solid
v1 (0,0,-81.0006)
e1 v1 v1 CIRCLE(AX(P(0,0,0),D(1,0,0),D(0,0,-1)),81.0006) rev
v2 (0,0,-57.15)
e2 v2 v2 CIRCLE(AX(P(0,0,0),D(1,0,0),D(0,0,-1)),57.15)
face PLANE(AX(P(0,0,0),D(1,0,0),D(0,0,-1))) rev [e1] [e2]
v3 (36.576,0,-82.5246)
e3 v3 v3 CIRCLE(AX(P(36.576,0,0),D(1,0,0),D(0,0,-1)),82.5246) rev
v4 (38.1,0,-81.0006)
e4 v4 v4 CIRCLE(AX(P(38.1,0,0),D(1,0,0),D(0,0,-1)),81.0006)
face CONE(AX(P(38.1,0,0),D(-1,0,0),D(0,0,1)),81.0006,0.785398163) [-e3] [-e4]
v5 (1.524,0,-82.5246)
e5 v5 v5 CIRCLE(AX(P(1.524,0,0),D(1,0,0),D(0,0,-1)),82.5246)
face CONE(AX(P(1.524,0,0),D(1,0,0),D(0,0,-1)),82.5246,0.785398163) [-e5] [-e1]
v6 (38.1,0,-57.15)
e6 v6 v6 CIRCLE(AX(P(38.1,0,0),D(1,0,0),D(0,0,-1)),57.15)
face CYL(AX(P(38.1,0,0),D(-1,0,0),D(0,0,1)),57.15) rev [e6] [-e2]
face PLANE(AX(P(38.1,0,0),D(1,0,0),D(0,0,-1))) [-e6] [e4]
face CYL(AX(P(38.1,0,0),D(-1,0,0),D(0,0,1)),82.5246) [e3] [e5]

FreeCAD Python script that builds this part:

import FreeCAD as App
import Part
import Sketcher

V = App.Vector
Q = App.Units.Quantity


def edges_at(feature, points):
    """Names of the edges that pass closest to the given points."""
    edges = feature.Shape.Edges
    near = lambda p: min(range(len(edges)), key=lambda i: edges[i].distToShape(Part.Vertex(*p))[0])
    return sorted({f"Edge{near(p) + 1}" for p in points})

doc = App.newDocument("Part")
body = doc.addObject("PartDesign::Body", "Body")

sketch1 = doc.addObject("Sketcher::SketchObject", "Sketch")
body.addObject(sketch1)
sketch1.AttachmentSupport = (doc.YZ_Plane, [""])
sketch1.MapMode = "FlatFace"
sketch1.addGeometry(Part.Circle(V(0, 0, 0), V(0, 0, 1), 82.5246), False)
sketch1.addConstraint([
    Sketcher.Constraint("Coincident", 0, 3, -1, 1),
    Sketcher.Constraint("Diameter", 0, Q("6.498 in")),
])
pad1 = doc.addObject("PartDesign::Pad", "Pad")
body.addObject(pad1)
pad1.Profile = sketch1
pad1.Length = Q("1.5 in")

sketch2 = doc.addObject("Sketcher::SketchObject", "Sketch001")
body.addObject(sketch2)
sketch2.AttachmentSupport = (doc.YZ_Plane, [""])
sketch2.MapMode = "FlatFace"
sketch2.addGeometry(Part.Circle(V(0, 0, 0), V(0, 0, 1), 57.15), False)
sketch2.addConstraint([
    Sketcher.Constraint("Coincident", 0, 3, -1, 1),
    Sketcher.Constraint("Diameter", 0, Q("4.5 in")),
])
pocket1 = doc.addObject("PartDesign::Pocket", "Pocket")
body.addObject(pocket1)
pocket1.Profile = sketch2
pocket1.Length = Q("1.5 in")
pocket1.Reversed = True
doc.recompute()

chamfer = doc.addObject("PartDesign::Chamfer", "Chamfer")
body.addObject(chamfer)
chamfer.Base = (pocket1, edges_at(pocket1, [(0, 0, 82.525), (38.1, 0, 82.525)]))
chamfer.Size = Q("0.06 in")

doc.recompute()
